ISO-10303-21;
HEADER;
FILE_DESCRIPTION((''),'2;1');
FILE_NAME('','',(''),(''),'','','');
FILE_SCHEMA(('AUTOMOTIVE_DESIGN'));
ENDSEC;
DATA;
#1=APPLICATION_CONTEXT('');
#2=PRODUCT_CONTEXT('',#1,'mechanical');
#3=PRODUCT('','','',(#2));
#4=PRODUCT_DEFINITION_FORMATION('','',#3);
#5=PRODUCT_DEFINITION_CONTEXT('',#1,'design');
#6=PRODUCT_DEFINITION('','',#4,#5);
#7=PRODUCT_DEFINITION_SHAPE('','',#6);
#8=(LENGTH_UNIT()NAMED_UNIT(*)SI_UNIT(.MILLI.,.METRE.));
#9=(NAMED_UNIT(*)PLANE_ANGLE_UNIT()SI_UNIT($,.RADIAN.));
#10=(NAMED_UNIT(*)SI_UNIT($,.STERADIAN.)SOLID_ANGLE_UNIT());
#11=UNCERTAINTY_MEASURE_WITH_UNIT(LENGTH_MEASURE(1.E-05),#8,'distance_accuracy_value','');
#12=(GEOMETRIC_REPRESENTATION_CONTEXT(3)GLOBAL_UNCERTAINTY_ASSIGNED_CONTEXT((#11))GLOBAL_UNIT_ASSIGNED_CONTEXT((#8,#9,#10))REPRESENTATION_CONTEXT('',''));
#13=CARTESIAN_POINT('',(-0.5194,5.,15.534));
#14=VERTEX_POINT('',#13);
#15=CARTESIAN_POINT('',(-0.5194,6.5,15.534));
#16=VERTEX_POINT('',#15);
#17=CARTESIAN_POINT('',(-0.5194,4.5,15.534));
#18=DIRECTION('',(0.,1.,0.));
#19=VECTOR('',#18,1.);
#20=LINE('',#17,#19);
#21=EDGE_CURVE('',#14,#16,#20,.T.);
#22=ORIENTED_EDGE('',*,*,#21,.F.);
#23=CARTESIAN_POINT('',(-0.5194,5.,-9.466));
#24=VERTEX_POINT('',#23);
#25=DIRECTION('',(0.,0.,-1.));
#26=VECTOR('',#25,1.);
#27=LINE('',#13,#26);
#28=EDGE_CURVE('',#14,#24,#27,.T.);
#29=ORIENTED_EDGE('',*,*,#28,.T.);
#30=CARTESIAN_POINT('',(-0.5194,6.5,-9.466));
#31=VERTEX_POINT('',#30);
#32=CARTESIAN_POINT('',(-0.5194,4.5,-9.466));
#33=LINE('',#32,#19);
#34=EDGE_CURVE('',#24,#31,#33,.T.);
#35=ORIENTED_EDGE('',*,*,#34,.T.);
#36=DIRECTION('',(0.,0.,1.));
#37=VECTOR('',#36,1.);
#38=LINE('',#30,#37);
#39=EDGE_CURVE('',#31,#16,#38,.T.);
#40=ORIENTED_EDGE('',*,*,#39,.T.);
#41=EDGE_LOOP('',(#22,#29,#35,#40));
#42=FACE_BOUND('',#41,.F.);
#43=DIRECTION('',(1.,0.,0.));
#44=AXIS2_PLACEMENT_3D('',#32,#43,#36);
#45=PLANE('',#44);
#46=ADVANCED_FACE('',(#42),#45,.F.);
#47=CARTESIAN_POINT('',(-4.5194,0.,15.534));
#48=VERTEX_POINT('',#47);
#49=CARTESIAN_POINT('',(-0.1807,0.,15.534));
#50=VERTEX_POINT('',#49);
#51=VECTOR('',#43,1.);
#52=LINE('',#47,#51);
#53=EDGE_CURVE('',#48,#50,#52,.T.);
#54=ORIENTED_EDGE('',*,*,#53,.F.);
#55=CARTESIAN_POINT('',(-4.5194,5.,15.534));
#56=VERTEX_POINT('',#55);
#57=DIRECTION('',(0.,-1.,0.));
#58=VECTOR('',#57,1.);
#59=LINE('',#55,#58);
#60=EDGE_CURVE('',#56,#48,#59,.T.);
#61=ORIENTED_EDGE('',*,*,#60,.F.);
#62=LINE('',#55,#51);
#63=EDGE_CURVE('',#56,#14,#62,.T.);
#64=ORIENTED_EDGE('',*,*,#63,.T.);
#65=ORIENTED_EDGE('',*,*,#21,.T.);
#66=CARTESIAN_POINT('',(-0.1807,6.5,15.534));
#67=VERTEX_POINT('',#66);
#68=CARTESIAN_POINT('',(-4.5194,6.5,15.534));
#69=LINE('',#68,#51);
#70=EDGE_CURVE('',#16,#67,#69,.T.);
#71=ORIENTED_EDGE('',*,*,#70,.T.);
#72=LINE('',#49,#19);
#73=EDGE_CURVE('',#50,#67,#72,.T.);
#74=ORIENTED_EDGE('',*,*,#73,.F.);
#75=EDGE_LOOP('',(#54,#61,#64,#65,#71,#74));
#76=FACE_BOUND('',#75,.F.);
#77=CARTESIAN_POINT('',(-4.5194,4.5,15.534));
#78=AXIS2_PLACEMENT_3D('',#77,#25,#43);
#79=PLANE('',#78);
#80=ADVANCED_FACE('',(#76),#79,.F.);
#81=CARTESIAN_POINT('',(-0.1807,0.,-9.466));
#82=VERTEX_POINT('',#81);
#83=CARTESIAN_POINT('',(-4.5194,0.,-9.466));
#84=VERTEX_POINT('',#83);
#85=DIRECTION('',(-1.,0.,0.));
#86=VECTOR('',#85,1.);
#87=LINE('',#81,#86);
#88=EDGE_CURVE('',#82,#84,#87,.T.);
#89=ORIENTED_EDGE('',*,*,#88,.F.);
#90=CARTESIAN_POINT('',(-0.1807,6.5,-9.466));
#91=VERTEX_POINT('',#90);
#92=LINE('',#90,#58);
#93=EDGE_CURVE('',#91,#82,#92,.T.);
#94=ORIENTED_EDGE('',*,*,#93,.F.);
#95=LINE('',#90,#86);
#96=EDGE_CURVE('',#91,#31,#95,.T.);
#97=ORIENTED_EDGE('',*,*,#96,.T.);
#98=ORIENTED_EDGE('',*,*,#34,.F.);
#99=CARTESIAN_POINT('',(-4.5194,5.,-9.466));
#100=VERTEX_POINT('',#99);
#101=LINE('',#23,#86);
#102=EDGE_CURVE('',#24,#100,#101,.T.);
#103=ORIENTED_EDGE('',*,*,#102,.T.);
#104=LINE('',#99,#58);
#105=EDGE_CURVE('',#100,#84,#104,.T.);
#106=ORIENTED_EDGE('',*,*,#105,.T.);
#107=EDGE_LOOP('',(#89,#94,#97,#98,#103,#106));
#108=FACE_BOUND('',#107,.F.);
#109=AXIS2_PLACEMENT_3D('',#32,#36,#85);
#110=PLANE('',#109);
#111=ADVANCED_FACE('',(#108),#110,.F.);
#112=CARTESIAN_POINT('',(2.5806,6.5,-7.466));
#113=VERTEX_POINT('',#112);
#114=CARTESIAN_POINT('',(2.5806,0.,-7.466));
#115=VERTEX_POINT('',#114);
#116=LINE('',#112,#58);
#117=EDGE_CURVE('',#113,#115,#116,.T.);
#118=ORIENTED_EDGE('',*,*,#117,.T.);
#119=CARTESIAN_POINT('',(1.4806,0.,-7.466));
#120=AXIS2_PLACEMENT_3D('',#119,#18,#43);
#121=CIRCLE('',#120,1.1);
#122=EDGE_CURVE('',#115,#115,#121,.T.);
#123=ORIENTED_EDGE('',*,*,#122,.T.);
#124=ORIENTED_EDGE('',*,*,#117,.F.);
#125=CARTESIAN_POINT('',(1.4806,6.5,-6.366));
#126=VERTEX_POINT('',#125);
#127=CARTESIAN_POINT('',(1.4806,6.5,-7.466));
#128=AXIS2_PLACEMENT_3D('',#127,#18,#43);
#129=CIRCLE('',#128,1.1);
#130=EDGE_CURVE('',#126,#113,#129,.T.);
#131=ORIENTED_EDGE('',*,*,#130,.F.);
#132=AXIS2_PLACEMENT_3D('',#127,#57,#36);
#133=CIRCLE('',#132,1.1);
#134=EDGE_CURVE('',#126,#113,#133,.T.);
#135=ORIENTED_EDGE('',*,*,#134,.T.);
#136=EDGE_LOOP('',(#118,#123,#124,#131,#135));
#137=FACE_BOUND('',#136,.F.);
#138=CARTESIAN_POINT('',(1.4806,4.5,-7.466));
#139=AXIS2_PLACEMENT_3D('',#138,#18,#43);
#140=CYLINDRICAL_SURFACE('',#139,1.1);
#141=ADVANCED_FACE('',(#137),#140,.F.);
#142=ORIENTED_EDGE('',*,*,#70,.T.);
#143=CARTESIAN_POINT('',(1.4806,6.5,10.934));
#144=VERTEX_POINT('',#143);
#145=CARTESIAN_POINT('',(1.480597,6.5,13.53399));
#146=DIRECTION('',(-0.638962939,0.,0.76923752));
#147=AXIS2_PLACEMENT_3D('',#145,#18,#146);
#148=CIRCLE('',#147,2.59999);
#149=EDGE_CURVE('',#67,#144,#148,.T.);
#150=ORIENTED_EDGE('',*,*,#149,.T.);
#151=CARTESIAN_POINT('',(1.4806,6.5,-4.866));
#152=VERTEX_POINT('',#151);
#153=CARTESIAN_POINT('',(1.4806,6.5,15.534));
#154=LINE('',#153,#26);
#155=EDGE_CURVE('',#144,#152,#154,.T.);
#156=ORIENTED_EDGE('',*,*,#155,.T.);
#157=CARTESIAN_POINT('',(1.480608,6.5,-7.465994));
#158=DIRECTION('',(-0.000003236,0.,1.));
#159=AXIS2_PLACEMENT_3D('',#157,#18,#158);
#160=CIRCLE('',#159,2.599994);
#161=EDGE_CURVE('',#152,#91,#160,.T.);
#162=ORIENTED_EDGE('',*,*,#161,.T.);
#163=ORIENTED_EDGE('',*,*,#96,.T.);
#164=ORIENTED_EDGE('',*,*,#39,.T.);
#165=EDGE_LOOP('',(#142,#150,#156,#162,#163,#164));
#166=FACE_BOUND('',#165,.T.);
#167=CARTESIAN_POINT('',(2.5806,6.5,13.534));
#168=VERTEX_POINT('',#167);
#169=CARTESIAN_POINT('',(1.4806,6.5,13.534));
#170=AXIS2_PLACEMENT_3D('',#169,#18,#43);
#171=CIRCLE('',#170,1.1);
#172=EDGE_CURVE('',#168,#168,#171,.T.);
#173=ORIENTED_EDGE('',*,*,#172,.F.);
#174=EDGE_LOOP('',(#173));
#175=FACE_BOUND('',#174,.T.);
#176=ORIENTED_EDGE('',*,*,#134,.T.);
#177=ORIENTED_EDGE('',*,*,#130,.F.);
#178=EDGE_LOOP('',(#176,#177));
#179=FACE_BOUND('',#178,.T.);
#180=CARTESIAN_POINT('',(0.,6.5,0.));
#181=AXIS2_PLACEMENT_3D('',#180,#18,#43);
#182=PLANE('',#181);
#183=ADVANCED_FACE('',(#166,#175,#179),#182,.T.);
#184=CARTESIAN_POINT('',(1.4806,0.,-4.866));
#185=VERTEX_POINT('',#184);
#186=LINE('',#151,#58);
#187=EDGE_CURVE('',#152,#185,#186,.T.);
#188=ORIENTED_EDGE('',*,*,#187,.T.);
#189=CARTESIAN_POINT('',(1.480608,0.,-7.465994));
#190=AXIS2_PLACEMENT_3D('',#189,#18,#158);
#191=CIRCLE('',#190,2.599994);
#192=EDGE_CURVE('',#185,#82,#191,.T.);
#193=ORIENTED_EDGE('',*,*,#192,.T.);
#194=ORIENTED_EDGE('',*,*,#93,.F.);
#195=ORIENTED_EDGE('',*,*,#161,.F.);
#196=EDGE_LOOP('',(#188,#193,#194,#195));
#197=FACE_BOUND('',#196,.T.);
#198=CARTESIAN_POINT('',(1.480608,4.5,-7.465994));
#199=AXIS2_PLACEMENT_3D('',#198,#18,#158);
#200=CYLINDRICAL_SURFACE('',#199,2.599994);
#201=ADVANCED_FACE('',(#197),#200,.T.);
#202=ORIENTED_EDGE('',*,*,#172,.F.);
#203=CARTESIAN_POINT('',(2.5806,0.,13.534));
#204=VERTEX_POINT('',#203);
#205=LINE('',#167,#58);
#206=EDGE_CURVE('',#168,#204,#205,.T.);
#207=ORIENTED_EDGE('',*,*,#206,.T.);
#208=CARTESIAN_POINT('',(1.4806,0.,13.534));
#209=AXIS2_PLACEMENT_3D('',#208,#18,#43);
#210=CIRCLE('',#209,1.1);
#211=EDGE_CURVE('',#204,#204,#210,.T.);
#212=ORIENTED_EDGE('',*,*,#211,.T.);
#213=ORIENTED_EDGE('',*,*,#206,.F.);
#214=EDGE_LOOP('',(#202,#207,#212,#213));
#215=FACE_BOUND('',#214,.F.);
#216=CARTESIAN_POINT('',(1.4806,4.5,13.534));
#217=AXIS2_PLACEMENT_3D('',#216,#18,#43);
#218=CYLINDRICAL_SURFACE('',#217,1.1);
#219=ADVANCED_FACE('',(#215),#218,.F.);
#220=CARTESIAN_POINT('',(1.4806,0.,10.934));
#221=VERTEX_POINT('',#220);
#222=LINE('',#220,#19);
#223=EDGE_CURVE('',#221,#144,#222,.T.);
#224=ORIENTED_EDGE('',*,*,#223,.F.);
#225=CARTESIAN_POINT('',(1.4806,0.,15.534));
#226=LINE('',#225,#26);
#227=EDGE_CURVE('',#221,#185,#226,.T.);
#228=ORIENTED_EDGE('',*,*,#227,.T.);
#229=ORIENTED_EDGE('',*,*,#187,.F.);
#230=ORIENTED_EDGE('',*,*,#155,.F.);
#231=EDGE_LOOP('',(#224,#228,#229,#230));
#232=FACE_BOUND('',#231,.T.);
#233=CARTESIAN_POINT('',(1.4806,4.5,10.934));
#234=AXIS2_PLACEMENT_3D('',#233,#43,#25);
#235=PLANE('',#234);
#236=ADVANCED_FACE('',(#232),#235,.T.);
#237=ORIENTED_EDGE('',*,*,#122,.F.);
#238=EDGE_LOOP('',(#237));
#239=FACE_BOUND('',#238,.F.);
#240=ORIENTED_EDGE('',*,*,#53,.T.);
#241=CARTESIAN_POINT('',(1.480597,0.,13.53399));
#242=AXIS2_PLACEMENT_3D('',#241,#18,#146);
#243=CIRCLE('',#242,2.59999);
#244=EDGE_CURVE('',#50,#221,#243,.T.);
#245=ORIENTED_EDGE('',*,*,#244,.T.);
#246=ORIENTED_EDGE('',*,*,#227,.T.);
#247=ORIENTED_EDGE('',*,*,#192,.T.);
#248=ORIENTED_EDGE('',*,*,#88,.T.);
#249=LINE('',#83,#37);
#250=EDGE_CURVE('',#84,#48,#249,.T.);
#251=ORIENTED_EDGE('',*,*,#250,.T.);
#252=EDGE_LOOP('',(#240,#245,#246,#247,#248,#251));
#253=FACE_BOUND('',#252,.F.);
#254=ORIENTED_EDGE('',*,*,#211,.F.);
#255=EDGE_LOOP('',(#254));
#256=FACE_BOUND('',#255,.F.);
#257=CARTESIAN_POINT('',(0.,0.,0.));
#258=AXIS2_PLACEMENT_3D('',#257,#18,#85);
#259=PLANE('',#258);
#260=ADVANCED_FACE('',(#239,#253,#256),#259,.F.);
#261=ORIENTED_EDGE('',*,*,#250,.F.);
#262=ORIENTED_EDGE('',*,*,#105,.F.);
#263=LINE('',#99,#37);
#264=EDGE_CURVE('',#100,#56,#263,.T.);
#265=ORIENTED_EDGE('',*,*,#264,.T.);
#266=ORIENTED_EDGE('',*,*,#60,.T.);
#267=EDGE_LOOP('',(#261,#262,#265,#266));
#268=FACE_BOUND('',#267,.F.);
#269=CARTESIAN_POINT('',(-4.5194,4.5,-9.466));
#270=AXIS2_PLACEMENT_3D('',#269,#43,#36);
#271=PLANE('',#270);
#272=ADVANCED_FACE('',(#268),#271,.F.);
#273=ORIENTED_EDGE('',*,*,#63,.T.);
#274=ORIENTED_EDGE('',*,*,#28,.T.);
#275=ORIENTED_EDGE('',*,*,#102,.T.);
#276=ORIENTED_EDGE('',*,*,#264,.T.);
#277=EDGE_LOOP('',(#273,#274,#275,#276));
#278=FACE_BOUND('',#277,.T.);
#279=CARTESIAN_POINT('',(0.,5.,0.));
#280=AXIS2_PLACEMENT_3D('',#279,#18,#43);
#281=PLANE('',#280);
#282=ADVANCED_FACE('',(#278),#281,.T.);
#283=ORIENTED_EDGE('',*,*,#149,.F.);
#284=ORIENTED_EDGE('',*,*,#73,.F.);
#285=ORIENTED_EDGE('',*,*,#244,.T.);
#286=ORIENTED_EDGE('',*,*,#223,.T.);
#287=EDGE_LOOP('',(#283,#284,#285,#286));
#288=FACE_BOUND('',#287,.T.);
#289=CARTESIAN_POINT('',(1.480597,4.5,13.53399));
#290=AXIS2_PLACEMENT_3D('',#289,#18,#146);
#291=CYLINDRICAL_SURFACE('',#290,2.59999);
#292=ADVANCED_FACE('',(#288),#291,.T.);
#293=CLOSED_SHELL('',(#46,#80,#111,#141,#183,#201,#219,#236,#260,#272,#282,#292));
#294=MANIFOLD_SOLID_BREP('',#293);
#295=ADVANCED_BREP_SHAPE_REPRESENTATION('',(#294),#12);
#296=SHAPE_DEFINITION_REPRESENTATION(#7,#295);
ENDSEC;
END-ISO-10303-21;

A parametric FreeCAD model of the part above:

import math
import FreeCAD as App
import Part
import Sketcher

V = App.Vector


def add_polygon(sketch, points):
    """Adds a closed chain of lines whose ends are joined by coincident constraints."""
    first, n = sketch.GeometryCount, len(points)
    for a, b in zip(points, points[1:] + points[:1]):
        sketch.addGeometry(Part.LineSegment(App.Vector(*a, 0), App.Vector(*b, 0)), False)
    for i in range(n):
        sketch.addConstraint(Sketcher.Constraint("Coincident", first + i, 2, first + (i + 1) % n, 1))

doc = App.newDocument("Part")
params = doc.addObject("Spreadsheet::Sheet", "Params")
for row, (alias, value) in enumerate([
    ("sketch1_width", "6 mm"),
    ("sketch1_height", "25 mm"),
    ("pad1_length", "4.5 mm"),
    ("sketch2_diameter", "2.2 mm"),
    ("sketch2_radius", "2.6 mm"),
    ("sketch2_height", "25 mm"),
    ("pad2_length", "2 mm"),
    ("pad2_length2", "4.5 mm"),
    ("sketch3_diameter", "2.2 mm"),
    ("sketch4_width", "4 mm"),
    ("sketch4_height", "25 mm"),
    ("pad3_length", "0.5 mm"),
], start=1):
    params.set(f"A{row}", alias)
    params.set(f"B{row}", "=" + value)
    params.setAlias(f"B{row}", alias)

body = doc.addObject("PartDesign::Body", "Body")

# Sketch on XZ plane
sketch1 = body.newObject("Sketcher::SketchObject", "Sketch")
sketch1.AttachmentSupport = (doc.getObject("XZ_Plane"), [""])
sketch1.MapMode = "FlatFace"
add_polygon(sketch1, [(-5, -9), (-5, 16), (1, 16), (1, -9)])  # lines 0-3
sketch1.addConstraint([
    Sketcher.Constraint("Vertical", 0),
    Sketcher.Constraint("Horizontal", 1),
    Sketcher.Constraint("Vertical", 2),
    Sketcher.Constraint("Horizontal", 3),
    Sketcher.Constraint("DistanceX", 1, 1, 1, 2, 6.0),
    Sketcher.Constraint("DistanceY", 0, 1, 0, 2, 25.0),
    Sketcher.Constraint("DistanceY", -1, 1, 0, 2, 15.534),
    Sketcher.Constraint("DistanceX", 0, 2, -1, 1, 4.5194),
])
sketch1.setExpression("Constraints[8]", "Params.sketch1_width")
sketch1.setExpression("Constraints[9]", "Params.sketch1_height")
pad1 = body.newObject("PartDesign::Pad", "Pad")
pad1.Profile = sketch1
pad1.setExpression("Length", "Params.pad1_length")
pad1.Reversed = True

# Sketch on XZ plane
sketch2 = body.newObject("Sketcher::SketchObject", "Sketch001")
sketch2.AttachmentSupport = (doc.getObject("XZ_Plane"), [""])
sketch2.MapMode = "FlatFace"
sketch2.AttachmentOffset = App.Placement(V(0, 0, -4.5), App.Rotation())
sketch2.addGeometry([
    Part.LineSegment(V(-0.52, 15.53, 0), V(-0.18, 15.53, 0)),  # 0
    Part.ArcOfCircle(Part.Circle(V(1.48, 13.53, 0), V(0, 0, 1), 2.6), math.radians(-90), math.radians(130)),  # 1
    Part.LineSegment(V(1.48, 10.93, 0), V(1.48, -4.87, 0)),  # 2
    Part.ArcOfCircle(Part.Circle(V(1.48, -7.47, 0), V(0, 0, 1), 2.6), math.radians(-130), math.radians(90)),  # 3
    Part.LineSegment(V(-0.18, -9.47, 0), V(-0.52, -9.47, 0)),  # 4
    Part.LineSegment(V(-0.52, -9.47, 0), V(-0.52, 15.53, 0)),  # 5
    Part.Circle(V(1.48, 13.53, 0), V(0, 0, 1), 1.1),  # 6
    Part.Circle(V(1.48, -7.47, 0), V(0, 0, 1), 1.1),  # 7
], False)
sketch2.addConstraint([
    Sketcher.Constraint("Coincident", 0, 2, 1, 2),
    Sketcher.Constraint("Coincident", 1, 1, 2, 1),
    Sketcher.Constraint("Coincident", 2, 2, 3, 2),
    Sketcher.Constraint("Coincident", 3, 1, 4, 1),
    Sketcher.Constraint("Coincident", 4, 2, 5, 1),
    Sketcher.Constraint("Coincident", 5, 2, 0, 1),
    Sketcher.Constraint("Horizontal", 0),
    Sketcher.Constraint("Vertical", 2),
    Sketcher.Constraint("Horizontal", 4),
    Sketcher.Constraint("Vertical", 5),
    Sketcher.Constraint("Coincident", 6, 3, 1, 3),
    Sketcher.Constraint("Coincident", 7, 3, 3, 3),
    Sketcher.Constraint("Equal", 1, 3),
    Sketcher.Constraint("Equal", 6, 7),
    Sketcher.Constraint("Vertical", 1, 3, 3, 3),
    Sketcher.Constraint("Vertical", 7, 3, 1, 1),
    Sketcher.Constraint("Vertical", 0, 2, 3, 1),
    Sketcher.Constraint("Diameter", 6, 2.2),
    Sketcher.Constraint("DistanceY", 1, 3, 0, 2, 2.0),
    Sketcher.Constraint("DistanceX", 4, 2, 3, 3, 2.0),
    Sketcher.Constraint("Radius", 1, 2.6),
    Sketcher.Constraint("DistanceY", 5, 1, 5, 2, 25.0),
    Sketcher.Constraint("DistanceY", -1, 1, 1, 3, 13.534),
    Sketcher.Constraint("DistanceX", -1, 1, 1, 3, 1.4806),
])
sketch2.setExpression("Constraints[17]", "Params.sketch2_diameter")
sketch2.setExpression("Constraints[20]", "Params.sketch2_radius")
sketch2.setExpression("Constraints[21]", "Params.sketch2_height")
pad2 = body.newObject("PartDesign::Pad", "Pad001")
pad2.Profile = sketch2
pad2.Type = "TwoLengths"
pad2.setExpression("Length", "Params.pad2_length")
pad2.setExpression("Length2", "Params.pad2_length2")
pad2.Reversed = True

# Sketch on XZ plane
sketch3 = body.newObject("Sketcher::SketchObject", "Sketch002")
sketch3.AttachmentSupport = (doc.getObject("XZ_Plane"), [""])
sketch3.MapMode = "FlatFace"
sketch3.AttachmentOffset = App.Placement(V(0, 0, -4.5), App.Rotation())
sketch3.addGeometry([
    Part.Circle(V(1.5, -7.5, 0), V(0, 0, 1), 1.1),
    Part.Circle(V(1.5, 13.5, 0), V(0, 0, 1), 1.1),
], False)
sketch3.addConstraint([
    Sketcher.Constraint("Equal", 0, 1),
    Sketcher.Constraint("Vertical", 0, 3, 1, 3),
    Sketcher.Constraint("Diameter", 0, 2.2),
    Sketcher.Constraint("DistanceY", 0, 3, 1, 3, 21.0),
    Sketcher.Constraint("DistanceY", 0, 3, -1, 1, 7.466),
    Sketcher.Constraint("DistanceX", -1, 1, 0, 3, 1.4806),
])
sketch3.setExpression("Constraints[2]", "Params.sketch3_diameter")
pocket1 = body.newObject("PartDesign::Pocket", "Pocket")
pocket1.Profile = sketch3
pocket1.Type = "ThroughAll"
pocket1.Midplane = True

# Sketch on XZ plane
sketch4 = body.newObject("Sketcher::SketchObject", "Sketch003")
sketch4.AttachmentSupport = (doc.getObject("XZ_Plane"), [""])
sketch4.MapMode = "FlatFace"
sketch4.AttachmentOffset = App.Placement(V(0, 0, -4.5), App.Rotation())
add_polygon(sketch4, [(-4.5, 15.5), (-0.5, 15.5), (-0.5, -9.5), (-4.5, -9.5)])  # lines 0-3
sketch4.addConstraint([
    Sketcher.Constraint("Horizontal", 0),
    Sketcher.Constraint("Vertical", 1),
    Sketcher.Constraint("Horizontal", 2),
    Sketcher.Constraint("Vertical", 3),
    Sketcher.Constraint("DistanceX", 0, 1, 0, 2, 4.0),
    Sketcher.Constraint("DistanceY", 1, 2, 1, 1, 25.0),
    Sketcher.Constraint("DistanceY", -1, 1, 0, 2, 15.534),
    Sketcher.Constraint("DistanceX", 0, 2, -1, 1, 0.5194),
])
sketch4.setExpression("Constraints[8]", "Params.sketch4_width")
sketch4.setExpression("Constraints[9]", "Params.sketch4_height")
pad3 = body.newObject("PartDesign::Pad", "Pad002")
pad3.Profile = sketch4
pad3.setExpression("Length", "Params.pad3_length")
pad3.Reversed = True

doc.recompute()
